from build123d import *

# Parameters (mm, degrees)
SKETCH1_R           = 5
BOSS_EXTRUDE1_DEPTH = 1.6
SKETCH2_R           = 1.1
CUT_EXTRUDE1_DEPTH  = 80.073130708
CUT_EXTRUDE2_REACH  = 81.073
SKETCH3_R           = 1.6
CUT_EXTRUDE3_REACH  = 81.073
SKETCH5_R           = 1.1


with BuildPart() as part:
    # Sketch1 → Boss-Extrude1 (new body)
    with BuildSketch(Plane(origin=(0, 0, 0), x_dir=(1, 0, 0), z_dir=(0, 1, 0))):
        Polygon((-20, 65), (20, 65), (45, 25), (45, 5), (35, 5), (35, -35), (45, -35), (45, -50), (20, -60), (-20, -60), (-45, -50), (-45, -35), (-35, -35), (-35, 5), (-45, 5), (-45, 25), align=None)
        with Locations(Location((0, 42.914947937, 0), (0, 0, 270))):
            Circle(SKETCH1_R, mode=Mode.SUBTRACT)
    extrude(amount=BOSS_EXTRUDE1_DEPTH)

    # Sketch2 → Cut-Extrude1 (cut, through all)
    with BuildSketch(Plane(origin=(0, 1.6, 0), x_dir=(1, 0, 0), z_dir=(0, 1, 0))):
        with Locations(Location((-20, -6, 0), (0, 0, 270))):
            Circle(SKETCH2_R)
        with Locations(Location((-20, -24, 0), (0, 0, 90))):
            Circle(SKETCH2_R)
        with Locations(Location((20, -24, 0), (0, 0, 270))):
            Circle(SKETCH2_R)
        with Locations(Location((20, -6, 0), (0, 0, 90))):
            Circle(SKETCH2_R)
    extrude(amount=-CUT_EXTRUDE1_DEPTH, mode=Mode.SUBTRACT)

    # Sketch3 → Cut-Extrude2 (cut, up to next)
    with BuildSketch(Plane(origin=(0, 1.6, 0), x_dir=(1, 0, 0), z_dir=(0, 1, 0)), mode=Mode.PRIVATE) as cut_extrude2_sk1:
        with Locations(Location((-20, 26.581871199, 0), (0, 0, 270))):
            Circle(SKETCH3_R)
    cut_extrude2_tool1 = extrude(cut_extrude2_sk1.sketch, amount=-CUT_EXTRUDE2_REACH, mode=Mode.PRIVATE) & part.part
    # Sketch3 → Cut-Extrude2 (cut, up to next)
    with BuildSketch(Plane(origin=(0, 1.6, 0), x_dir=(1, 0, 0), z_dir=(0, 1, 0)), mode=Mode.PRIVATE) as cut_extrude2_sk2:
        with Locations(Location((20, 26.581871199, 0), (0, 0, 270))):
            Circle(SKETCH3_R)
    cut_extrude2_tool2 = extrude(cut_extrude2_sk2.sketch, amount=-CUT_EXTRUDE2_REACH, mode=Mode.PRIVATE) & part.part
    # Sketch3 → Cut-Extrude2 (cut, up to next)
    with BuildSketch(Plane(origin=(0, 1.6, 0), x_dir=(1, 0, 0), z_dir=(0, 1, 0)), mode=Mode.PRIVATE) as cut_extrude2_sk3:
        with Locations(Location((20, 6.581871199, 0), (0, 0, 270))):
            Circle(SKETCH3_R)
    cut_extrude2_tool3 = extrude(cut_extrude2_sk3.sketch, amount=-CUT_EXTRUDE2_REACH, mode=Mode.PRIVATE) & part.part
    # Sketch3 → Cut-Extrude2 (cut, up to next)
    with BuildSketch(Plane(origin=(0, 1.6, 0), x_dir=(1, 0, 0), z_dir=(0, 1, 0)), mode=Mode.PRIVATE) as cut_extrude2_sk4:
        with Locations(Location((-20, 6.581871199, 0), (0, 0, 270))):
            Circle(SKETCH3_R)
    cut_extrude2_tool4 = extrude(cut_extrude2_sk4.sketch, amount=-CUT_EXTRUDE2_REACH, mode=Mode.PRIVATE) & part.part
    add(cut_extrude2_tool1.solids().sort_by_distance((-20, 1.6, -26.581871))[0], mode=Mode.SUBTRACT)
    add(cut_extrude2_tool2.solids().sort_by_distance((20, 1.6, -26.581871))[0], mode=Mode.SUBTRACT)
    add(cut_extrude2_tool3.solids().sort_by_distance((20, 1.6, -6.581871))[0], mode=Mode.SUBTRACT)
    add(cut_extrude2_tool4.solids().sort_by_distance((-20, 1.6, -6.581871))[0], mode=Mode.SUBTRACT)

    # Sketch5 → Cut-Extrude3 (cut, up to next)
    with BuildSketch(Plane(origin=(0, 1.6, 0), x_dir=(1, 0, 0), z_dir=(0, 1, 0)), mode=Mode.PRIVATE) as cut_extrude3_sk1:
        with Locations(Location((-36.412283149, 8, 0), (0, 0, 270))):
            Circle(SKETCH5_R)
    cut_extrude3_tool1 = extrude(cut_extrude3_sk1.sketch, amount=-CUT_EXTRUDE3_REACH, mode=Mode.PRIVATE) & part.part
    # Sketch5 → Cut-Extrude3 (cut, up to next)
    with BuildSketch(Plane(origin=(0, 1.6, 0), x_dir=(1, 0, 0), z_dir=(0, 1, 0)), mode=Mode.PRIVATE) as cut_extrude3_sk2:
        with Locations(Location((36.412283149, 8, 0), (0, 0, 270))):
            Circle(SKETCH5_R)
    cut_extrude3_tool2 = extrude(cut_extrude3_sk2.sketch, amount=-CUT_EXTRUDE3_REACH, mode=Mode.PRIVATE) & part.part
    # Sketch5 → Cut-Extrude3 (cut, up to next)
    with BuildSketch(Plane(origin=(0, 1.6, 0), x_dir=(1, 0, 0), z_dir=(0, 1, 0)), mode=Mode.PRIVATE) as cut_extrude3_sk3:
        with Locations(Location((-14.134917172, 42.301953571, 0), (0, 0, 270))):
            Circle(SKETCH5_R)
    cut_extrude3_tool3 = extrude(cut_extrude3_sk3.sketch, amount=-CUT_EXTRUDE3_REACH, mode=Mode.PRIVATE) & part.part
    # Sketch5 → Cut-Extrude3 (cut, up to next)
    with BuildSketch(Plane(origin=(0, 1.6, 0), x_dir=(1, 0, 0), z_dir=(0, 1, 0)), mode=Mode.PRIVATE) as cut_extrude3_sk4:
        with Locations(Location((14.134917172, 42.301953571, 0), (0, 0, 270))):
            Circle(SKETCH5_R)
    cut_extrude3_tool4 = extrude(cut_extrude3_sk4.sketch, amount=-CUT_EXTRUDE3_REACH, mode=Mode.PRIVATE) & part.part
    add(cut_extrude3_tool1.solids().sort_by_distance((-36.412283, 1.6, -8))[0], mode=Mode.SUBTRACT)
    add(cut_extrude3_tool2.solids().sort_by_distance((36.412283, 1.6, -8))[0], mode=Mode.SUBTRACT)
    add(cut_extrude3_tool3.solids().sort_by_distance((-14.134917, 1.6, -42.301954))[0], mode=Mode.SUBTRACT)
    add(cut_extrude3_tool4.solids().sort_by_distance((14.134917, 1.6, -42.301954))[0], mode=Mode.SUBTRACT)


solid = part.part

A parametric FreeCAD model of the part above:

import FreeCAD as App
import Part
import Sketcher
from FreeCAD import Vector


def add_polygon(sketch, points):
    """Adds a closed chain of lines whose ends are joined by coincident constraints."""
    first, n = sketch.GeometryCount, len(points)
    for a, b in zip(points, points[1:] + points[:1]):
        sketch.addGeometry(Part.LineSegment(App.Vector(*a, 0), App.Vector(*b, 0)), False)
    for i in range(n):
        sketch.addConstraint(Sketcher.Constraint("Coincident", first + i, 2, first + (i + 1) % n, 1))

doc = App.newDocument("Part")
params = doc.addObject("Spreadsheet::Sheet", "Params")
for row, (alias, value) in enumerate([
    ("sketch1_diameter", "10 mm"),
    ("sketch1_width", "40 mm"),
    ("sketch1_width2", "10 mm"),
    ("sketch1_height", "20 mm"),
    ("sketch1_height2", "15 mm"),
    ("pad1_length", "1.6 mm"),
    ("sketch2_diameter", "2.2 mm"),
    ("sketch3_diameter", "3.2 mm"),
    ("sketch4_diameter", "3.2 mm"),
    ("sketch5_diameter", "3.2 mm"),
    ("sketch6_diameter", "3.2 mm"),
    ("sketch7_diameter", "2.2 mm"),
    ("sketch8_diameter", "2.2 mm"),
    ("sketch9_diameter", "2.2 mm"),
    ("sketch10_diameter", "2.2 mm"),
], start=1):
    params.set(f"A{row}", alias)
    params.set(f"B{row}", "=" + value)
    params.setAlias(f"B{row}", alias)

body = doc.addObject("PartDesign::Body", "Body")

sketch1 = doc.addObject("Sketcher::SketchObject", "Sketch")
body.addObject(sketch1)
sketch1.AttachmentSupport = (doc.XZ_Plane, [""])
sketch1.MapMode = "FlatFace"
add_polygon(sketch1, [(20, -65), (-20, -65), (-45, -25), (-45, -5), (-35, -5), (-35, 35), (-45, 35), (-45, 50), (-20, 60), (20, 60), (45, 50), (45, 35), (35, 35), (35, -5), (45, -5), (45, -25)])
sketch1.addGeometry(Part.Circle(Vector(0, -43, 0), Vector(0, 0, 1), 5), False)
sketch1.addConstraint([
    Sketcher.Constraint("Horizontal", 0),
    Sketcher.Constraint("Vertical", 2),
    Sketcher.Constraint("Horizontal", 3),
    Sketcher.Constraint("Vertical", 4),
    Sketcher.Constraint("Horizontal", 5),
    Sketcher.Constraint("Vertical", 6),
    Sketcher.Constraint("Horizontal", 8),
    Sketcher.Constraint("Vertical", 10),
    Sketcher.Constraint("Horizontal", 11),
    Sketcher.Constraint("Vertical", 12),
    Sketcher.Constraint("Horizontal", 13),
    Sketcher.Constraint("Vertical", 14),
    Sketcher.Constraint("Symmetric", 6, 2, 9, 2, -2),
    Sketcher.Constraint("Symmetric", 4, 2, 11, 2, -2),
    Sketcher.Constraint("Symmetric", 2, 2, 13, 2, -2),
    Sketcher.Constraint("PointOnObject", 16, 3, -2),
    Sketcher.Constraint("Horizontal", 1, 2, 14, 2),
    Sketcher.Constraint("Vertical", 2, 2, 5, 2),
    Sketcher.Constraint("Vertical", 0, 2, 7, 2),
    Sketcher.Constraint("Vertical", 8, 2, 15, 2),
    Sketcher.Constraint("Equal", 8, 4),
    Sketcher.Constraint("Equal", 7, 9),
    Sketcher.Constraint("Diameter", 16, 10.0),
    Sketcher.Constraint("DistanceX", 0, 2, 0, 1, 40.0),
    Sketcher.Constraint("DistanceX", 3, 1, 3, 2, 10.0),
    Sketcher.Constraint("DistanceY", 2, 1, 2, 2, 20.0),
    Sketcher.Constraint("DistanceY", 6, 1, 6, 2, 15.0),
    Sketcher.Constraint("DistanceY", 0, 2, -1, 1, 65.0),
    Sketcher.Constraint("DistanceX", 1, 2, -1, 1, 45.0),
    Sketcher.Constraint("DistanceY", 1, 2, -1, 1, 25.0),
    Sketcher.Constraint("DistanceY", -1, 1, 7, 2, 60.0),
    Sketcher.Constraint("DistanceY", 16, 3, -1, 1, 42.914948),
])
sketch1.setExpression("Constraints[38]", "Params.sketch1_diameter")
sketch1.setExpression("Constraints[39]", "Params.sketch1_width")
sketch1.setExpression("Constraints[40]", "Params.sketch1_width2")
sketch1.setExpression("Constraints[41]", "Params.sketch1_height")
sketch1.setExpression("Constraints[42]", "Params.sketch1_height2")
pad1 = doc.addObject("PartDesign::Pad", "Pad")
body.addObject(pad1)
pad1.Profile = sketch1
pad1.setExpression("Length", "Params.pad1_length")
pad1.Reversed = True

sketch2 = doc.addObject("Sketcher::SketchObject", "Sketch001")
body.addObject(sketch2)
sketch2.AttachmentSupport = (doc.XZ_Plane, [""])
sketch2.MapMode = "FlatFace"
sketch2.AttachmentOffset = App.Placement(Vector(0, 0, -1.6), App.Rotation())
sketch2.addGeometry([
    Part.Circle(Vector(-20, 6, 0), Vector(0, 0, 1), 1.1),
    Part.Circle(Vector(-20, 24, 0), Vector(0, 0, 1), 1.1),
    Part.Circle(Vector(20, 24, 0), Vector(0, 0, 1), 1.1),
    Part.Circle(Vector(20, 6, 0), Vector(0, 0, 1), 1.1),
], False)
sketch2.addConstraint([
    Sketcher.Constraint("Equal", 0, 1),
    Sketcher.Constraint("Equal", 1, 2),
    Sketcher.Constraint("Equal", 2, 3),
    Sketcher.Constraint("Symmetric", 1, 3, 2, 3, -2),
    Sketcher.Constraint("Symmetric", 0, 3, 3, 3, -2),
    Sketcher.Constraint("Vertical", 0, 3, 1, 3),
    Sketcher.Constraint("Diameter", 0, 2.2),
    Sketcher.Constraint("DistanceX", 0, 3, -1, 1, 20.0),
    Sketcher.Constraint("DistanceY", -1, 1, 0, 3, 6.0),
    Sketcher.Constraint("DistanceY", -1, 1, 1, 3, 24.0),
])
sketch2.setExpression("Constraints[6]", "Params.sketch2_diameter")
pocket1 = doc.addObject("PartDesign::Pocket", "Pocket")
body.addObject(pocket1)
pocket1.Profile = sketch2
pocket1.Type = "ThroughAll"
pocket1.Reversed = True

sketch3 = doc.addObject("Sketcher::SketchObject", "Sketch002")
body.addObject(sketch3)
sketch3.AttachmentSupport = (doc.XZ_Plane, [""])
sketch3.MapMode = "FlatFace"
sketch3.AttachmentOffset = App.Placement(Vector(0, 0, -1.6), App.Rotation())
sketch3.addGeometry(Part.Circle(Vector(-20, -26.6, 0), Vector(0, 0, 1), 1.6), False)
sketch3.addConstraint([
    Sketcher.Constraint("Diameter", 0, 3.2),
    Sketcher.Constraint("DistanceX", 0, 3, -1, 1, 20.0),
    Sketcher.Constraint("DistanceY", 0, 3, -1, 1, 26.581871),
])
sketch3.setExpression("Constraints[0]", "Params.sketch3_diameter")
pocket2 = doc.addObject("PartDesign::Pocket", "Pocket001")
body.addObject(pocket2)
pocket2.Profile = sketch3
pocket2.Type = "UpToFirst"
pocket2.Reversed = True

sketch4 = doc.addObject("Sketcher::SketchObject", "Sketch003")
body.addObject(sketch4)
sketch4.AttachmentSupport = (doc.XZ_Plane, [""])
sketch4.MapMode = "FlatFace"
sketch4.AttachmentOffset = App.Placement(Vector(0, 0, -1.6), App.Rotation())
sketch4.addGeometry(Part.Circle(Vector(20, -26.6, 0), Vector(0, 0, 1), 1.6), False)
sketch4.addConstraint([
    Sketcher.Constraint("Diameter", 0, 3.2),
    Sketcher.Constraint("DistanceX", -1, 1, 0, 3, 20.0),
    Sketcher.Constraint("DistanceY", 0, 3, -1, 1, 26.581871),
])
sketch4.setExpression("Constraints[0]", "Params.sketch4_diameter")
pocket3 = doc.addObject("PartDesign::Pocket", "Pocket002")
body.addObject(pocket3)
pocket3.Profile = sketch4
pocket3.Type = "UpToFirst"
pocket3.Reversed = True

sketch5 = doc.addObject("Sketcher::SketchObject", "Sketch004")
body.addObject(sketch5)
sketch5.AttachmentSupport = (doc.XZ_Plane, [""])
sketch5.MapMode = "FlatFace"
sketch5.AttachmentOffset = App.Placement(Vector(0, 0, -1.6), App.Rotation())
sketch5.addGeometry(Part.Circle(Vector(20, -6.6, 0), Vector(0, 0, 1), 1.6), False)
sketch5.addConstraint([
    Sketcher.Constraint("Diameter", 0, 3.2),
    Sketcher.Constraint("DistanceX", -1, 1, 0, 3, 20.0),
    Sketcher.Constraint("DistanceY", 0, 3, -1, 1, 6.581871),
])
sketch5.setExpression("Constraints[0]", "Params.sketch5_diameter")
pocket4 = doc.addObject("PartDesign::Pocket", "Pocket003")
body.addObject(pocket4)
pocket4.Profile = sketch5
pocket4.Type = "UpToFirst"
pocket4.Reversed = True

sketch6 = doc.addObject("Sketcher::SketchObject", "Sketch005")
body.addObject(sketch6)
sketch6.AttachmentSupport = (doc.XZ_Plane, [""])
sketch6.MapMode = "FlatFace"
sketch6.AttachmentOffset = App.Placement(Vector(0, 0, -1.6), App.Rotation())
sketch6.addGeometry(Part.Circle(Vector(-20, -6.6, 0), Vector(0, 0, 1), 1.6), False)
sketch6.addConstraint([
    Sketcher.Constraint("Diameter", 0, 3.2),
    Sketcher.Constraint("DistanceX", 0, 3, -1, 1, 20.0),
    Sketcher.Constraint("DistanceY", 0, 3, -1, 1, 6.581871),
])
sketch6.setExpression("Constraints[0]", "Params.sketch6_diameter")
pocket5 = doc.addObject("PartDesign::Pocket", "Pocket004")
body.addObject(pocket5)
pocket5.Profile = sketch6
pocket5.Type = "UpToFirst"
pocket5.Reversed = True

sketch7 = doc.addObject("Sketcher::SketchObject", "Sketch006")
body.addObject(sketch7)
sketch7.AttachmentSupport = (doc.XZ_Plane, [""])
sketch7.MapMode = "FlatFace"
sketch7.AttachmentOffset = App.Placement(Vector(0, 0, -1.6), App.Rotation())
sketch7.addGeometry(Part.Circle(Vector(-36.4, -8, 0), Vector(0, 0, 1), 1.1), False)
sketch7.addConstraint([
    Sketcher.Constraint("Diameter", 0, 2.2),
    Sketcher.Constraint("DistanceY", 0, 3, -1, 1, 8.0),
    Sketcher.Constraint("DistanceX", 0, 3, -1, 1, 36.412283),
])
sketch7.setExpression("Constraints[0]", "Params.sketch7_diameter")
pocket6 = doc.addObject("PartDesign::Pocket", "Pocket005")
body.addObject(pocket6)
pocket6.Profile = sketch7
pocket6.Type = "UpToFirst"
pocket6.Reversed = True

sketch8 = doc.addObject("Sketcher::SketchObject", "Sketch007")
body.addObject(sketch8)
sketch8.AttachmentSupport = (doc.XZ_Plane, [""])
sketch8.MapMode = "FlatFace"
sketch8.AttachmentOffset = App.Placement(Vector(0, 0, -1.6), App.Rotation())
sketch8.addGeometry(Part.Circle(Vector(36.4, -8, 0), Vector(0, 0, 1), 1.1), False)
sketch8.addConstraint([
    Sketcher.Constraint("Diameter", 0, 2.2),
    Sketcher.Constraint("DistanceY", 0, 3, -1, 1, 8.0),
    Sketcher.Constraint("DistanceX", -1, 1, 0, 3, 36.412283),
])
sketch8.setExpression("Constraints[0]", "Params.sketch8_diameter")
pocket7 = doc.addObject("PartDesign::Pocket", "Pocket006")
body.addObject(pocket7)
pocket7.Profile = sketch8
pocket7.Type = "UpToFirst"
pocket7.Reversed = True

sketch9 = doc.addObject("Sketcher::SketchObject", "Sketch008")
body.addObject(sketch9)
sketch9.AttachmentSupport = (doc.XZ_Plane, [""])
sketch9.MapMode = "FlatFace"
sketch9.AttachmentOffset = App.Placement(Vector(0, 0, -1.6), App.Rotation())
sketch9.addGeometry(Part.Circle(Vector(-14.1, -42.3, 0), Vector(0, 0, 1), 1.1), False)
sketch9.addConstraint([
    Sketcher.Constraint("Diameter", 0, 2.2),
    Sketcher.Constraint("DistanceX", 0, 3, -1, 1, 14.134917),
    Sketcher.Constraint("DistanceY", 0, 3, -1, 1, 42.301954),
])
sketch9.setExpression("Constraints[0]", "Params.sketch9_diameter")
pocket8 = doc.addObject("PartDesign::Pocket", "Pocket007")
body.addObject(pocket8)
pocket8.Profile = sketch9
pocket8.Type = "UpToFirst"
pocket8.Reversed = True

sketch10 = doc.addObject("Sketcher::SketchObject", "Sketch009")
body.addObject(sketch10)
sketch10.AttachmentSupport = (doc.XZ_Plane, [""])
sketch10.MapMode = "FlatFace"
sketch10.AttachmentOffset = App.Placement(Vector(0, 0, -1.6), App.Rotation())
sketch10.addGeometry(Part.Circle(Vector(14.1, -42.3, 0), Vector(0, 0, 1), 1.1), False)
sketch10.addConstraint([
    Sketcher.Constraint("Diameter", 0, 2.2),
    Sketcher.Constraint("DistanceX", -1, 1, 0, 3, 14.134917),
    Sketcher.Constraint("DistanceY", 0, 3, -1, 1, 42.301954),
])
sketch10.setExpression("Constraints[0]", "Params.sketch10_diameter")
pocket9 = doc.addObject("PartDesign::Pocket", "Pocket008")
body.addObject(pocket9)
pocket9.Profile = sketch10
pocket9.Type = "UpToFirst"
pocket9.Reversed = True

doc.recompute()
